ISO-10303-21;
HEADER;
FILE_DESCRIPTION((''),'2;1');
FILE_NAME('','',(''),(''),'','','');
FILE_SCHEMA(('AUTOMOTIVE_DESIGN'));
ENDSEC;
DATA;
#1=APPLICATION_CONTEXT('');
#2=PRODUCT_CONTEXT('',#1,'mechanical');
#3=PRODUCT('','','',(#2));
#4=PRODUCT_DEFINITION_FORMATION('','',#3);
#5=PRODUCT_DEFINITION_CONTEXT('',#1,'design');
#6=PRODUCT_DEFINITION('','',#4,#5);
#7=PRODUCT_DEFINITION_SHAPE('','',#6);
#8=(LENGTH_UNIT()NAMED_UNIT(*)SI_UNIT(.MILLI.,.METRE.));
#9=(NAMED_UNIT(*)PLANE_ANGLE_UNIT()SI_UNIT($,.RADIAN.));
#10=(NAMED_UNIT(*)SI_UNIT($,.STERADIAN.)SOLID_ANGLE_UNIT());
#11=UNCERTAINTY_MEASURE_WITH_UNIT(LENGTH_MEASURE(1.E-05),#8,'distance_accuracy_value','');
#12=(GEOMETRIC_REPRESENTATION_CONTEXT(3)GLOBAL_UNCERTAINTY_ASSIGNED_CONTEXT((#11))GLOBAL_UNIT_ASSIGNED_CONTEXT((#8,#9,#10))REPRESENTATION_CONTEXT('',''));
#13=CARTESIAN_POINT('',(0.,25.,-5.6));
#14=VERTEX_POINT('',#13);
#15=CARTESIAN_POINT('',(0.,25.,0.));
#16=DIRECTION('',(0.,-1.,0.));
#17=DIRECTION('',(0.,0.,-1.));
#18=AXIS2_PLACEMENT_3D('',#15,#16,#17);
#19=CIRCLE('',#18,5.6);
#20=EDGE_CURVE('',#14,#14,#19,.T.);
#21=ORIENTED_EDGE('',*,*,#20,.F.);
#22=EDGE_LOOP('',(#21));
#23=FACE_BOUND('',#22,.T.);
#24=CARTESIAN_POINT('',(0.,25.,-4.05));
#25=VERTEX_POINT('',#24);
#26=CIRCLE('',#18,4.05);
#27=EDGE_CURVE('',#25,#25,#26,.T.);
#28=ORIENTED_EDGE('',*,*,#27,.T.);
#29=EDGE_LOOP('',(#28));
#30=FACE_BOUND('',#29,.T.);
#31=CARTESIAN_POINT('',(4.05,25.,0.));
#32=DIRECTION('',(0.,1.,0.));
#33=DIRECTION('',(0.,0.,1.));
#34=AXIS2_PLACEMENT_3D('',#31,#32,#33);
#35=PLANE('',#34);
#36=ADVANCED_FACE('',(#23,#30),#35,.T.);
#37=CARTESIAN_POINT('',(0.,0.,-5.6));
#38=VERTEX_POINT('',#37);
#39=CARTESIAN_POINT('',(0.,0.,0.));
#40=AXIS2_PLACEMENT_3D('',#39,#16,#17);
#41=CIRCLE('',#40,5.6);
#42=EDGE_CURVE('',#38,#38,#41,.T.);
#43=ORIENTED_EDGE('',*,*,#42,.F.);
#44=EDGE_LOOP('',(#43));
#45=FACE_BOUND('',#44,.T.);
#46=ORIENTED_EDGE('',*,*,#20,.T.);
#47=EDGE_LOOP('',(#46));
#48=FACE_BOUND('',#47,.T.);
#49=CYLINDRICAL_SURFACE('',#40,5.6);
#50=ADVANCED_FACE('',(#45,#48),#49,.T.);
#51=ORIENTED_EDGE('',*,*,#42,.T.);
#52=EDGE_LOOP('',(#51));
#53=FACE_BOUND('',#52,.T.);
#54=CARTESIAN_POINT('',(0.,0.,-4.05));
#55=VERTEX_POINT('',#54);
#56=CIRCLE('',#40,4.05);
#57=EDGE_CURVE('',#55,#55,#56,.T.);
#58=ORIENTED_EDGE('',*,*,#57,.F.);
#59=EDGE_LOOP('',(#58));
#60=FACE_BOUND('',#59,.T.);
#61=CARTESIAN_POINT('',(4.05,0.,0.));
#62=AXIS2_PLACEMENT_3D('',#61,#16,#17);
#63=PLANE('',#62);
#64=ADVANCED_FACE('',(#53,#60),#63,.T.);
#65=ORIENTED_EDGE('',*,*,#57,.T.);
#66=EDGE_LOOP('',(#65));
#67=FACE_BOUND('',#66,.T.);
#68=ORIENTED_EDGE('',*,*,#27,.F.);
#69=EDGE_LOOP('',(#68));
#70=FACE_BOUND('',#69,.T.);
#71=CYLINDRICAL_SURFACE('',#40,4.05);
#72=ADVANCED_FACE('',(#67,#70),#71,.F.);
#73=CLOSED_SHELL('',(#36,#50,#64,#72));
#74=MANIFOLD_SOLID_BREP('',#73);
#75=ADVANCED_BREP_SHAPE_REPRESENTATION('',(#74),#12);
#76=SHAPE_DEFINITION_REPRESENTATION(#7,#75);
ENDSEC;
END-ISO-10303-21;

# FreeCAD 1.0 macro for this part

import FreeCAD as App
import Part
import Sketcher

V = App.Vector
Q = App.Units.Quantity


def add_polygon(sketch, points):
    """Adds a closed chain of lines whose ends are joined by coincident constraints."""
    first, n = sketch.GeometryCount, len(points)
    for a, b in zip(points, points[1:] + points[:1]):
        sketch.addGeometry(Part.LineSegment(App.Vector(*a, 0), App.Vector(*b, 0)), False)
    for i in range(n):
        sketch.addConstraint(Sketcher.Constraint("Coincident", first + i, 2, first + (i + 1) % n, 1))

doc = App.newDocument("Part")
params = doc.addObject("Spreadsheet::Sheet", "Params")
for row, (alias, value) in enumerate([
    ("sketch1_height", "25 mm"),
    ("sketch1_width", "1.55 mm"),
    ("revolution_angle", "360 deg"),
], start=1):
    params.set(f"A{row}", alias)
    params.set(f"B{row}", "=" + value)
    params.setAlias(f"B{row}", alias)

body = doc.addObject("PartDesign::Body", "Body")

sketch1 = body.newObject("Sketcher::SketchObject", "Sketch")
sketch1.AttachmentSupport = (doc.getObject("XY_Plane"), [""])
sketch1.MapMode = "FlatFace"
add_polygon(sketch1, [(4.05, 25), (4.05, 0), (5.6, 0), (5.6, 25)])
sketch1.addConstraint([
    Sketcher.Constraint("Vertical", 0),
    Sketcher.Constraint("Horizontal", 1),
    Sketcher.Constraint("Vertical", 2),
    Sketcher.Constraint("Horizontal", 3),
    Sketcher.Constraint("PointOnObject", 0, 2, -1),
    Sketcher.Constraint("DistanceY", 0, 2, 0, 1, Q("25 mm")),
    Sketcher.Constraint("DistanceX", 1, 1, 1, 2, Q("1.55 mm")),
    Sketcher.Constraint("DistanceX", -1, 1, 1, 2, Q("5.6 mm")),
])
sketch1.setExpression("Constraints[9]", "Params.sketch1_height")
sketch1.setExpression("Constraints[10]", "Params.sketch1_width")
revolution = body.newObject("PartDesign::Revolution", "Revolution")
revolution.Profile = sketch1
revolution.ReferenceAxis = (sketch1, ["V_Axis"])
revolution.setExpression("Angle", "Params.revolution_angle")

doc.recompute()
